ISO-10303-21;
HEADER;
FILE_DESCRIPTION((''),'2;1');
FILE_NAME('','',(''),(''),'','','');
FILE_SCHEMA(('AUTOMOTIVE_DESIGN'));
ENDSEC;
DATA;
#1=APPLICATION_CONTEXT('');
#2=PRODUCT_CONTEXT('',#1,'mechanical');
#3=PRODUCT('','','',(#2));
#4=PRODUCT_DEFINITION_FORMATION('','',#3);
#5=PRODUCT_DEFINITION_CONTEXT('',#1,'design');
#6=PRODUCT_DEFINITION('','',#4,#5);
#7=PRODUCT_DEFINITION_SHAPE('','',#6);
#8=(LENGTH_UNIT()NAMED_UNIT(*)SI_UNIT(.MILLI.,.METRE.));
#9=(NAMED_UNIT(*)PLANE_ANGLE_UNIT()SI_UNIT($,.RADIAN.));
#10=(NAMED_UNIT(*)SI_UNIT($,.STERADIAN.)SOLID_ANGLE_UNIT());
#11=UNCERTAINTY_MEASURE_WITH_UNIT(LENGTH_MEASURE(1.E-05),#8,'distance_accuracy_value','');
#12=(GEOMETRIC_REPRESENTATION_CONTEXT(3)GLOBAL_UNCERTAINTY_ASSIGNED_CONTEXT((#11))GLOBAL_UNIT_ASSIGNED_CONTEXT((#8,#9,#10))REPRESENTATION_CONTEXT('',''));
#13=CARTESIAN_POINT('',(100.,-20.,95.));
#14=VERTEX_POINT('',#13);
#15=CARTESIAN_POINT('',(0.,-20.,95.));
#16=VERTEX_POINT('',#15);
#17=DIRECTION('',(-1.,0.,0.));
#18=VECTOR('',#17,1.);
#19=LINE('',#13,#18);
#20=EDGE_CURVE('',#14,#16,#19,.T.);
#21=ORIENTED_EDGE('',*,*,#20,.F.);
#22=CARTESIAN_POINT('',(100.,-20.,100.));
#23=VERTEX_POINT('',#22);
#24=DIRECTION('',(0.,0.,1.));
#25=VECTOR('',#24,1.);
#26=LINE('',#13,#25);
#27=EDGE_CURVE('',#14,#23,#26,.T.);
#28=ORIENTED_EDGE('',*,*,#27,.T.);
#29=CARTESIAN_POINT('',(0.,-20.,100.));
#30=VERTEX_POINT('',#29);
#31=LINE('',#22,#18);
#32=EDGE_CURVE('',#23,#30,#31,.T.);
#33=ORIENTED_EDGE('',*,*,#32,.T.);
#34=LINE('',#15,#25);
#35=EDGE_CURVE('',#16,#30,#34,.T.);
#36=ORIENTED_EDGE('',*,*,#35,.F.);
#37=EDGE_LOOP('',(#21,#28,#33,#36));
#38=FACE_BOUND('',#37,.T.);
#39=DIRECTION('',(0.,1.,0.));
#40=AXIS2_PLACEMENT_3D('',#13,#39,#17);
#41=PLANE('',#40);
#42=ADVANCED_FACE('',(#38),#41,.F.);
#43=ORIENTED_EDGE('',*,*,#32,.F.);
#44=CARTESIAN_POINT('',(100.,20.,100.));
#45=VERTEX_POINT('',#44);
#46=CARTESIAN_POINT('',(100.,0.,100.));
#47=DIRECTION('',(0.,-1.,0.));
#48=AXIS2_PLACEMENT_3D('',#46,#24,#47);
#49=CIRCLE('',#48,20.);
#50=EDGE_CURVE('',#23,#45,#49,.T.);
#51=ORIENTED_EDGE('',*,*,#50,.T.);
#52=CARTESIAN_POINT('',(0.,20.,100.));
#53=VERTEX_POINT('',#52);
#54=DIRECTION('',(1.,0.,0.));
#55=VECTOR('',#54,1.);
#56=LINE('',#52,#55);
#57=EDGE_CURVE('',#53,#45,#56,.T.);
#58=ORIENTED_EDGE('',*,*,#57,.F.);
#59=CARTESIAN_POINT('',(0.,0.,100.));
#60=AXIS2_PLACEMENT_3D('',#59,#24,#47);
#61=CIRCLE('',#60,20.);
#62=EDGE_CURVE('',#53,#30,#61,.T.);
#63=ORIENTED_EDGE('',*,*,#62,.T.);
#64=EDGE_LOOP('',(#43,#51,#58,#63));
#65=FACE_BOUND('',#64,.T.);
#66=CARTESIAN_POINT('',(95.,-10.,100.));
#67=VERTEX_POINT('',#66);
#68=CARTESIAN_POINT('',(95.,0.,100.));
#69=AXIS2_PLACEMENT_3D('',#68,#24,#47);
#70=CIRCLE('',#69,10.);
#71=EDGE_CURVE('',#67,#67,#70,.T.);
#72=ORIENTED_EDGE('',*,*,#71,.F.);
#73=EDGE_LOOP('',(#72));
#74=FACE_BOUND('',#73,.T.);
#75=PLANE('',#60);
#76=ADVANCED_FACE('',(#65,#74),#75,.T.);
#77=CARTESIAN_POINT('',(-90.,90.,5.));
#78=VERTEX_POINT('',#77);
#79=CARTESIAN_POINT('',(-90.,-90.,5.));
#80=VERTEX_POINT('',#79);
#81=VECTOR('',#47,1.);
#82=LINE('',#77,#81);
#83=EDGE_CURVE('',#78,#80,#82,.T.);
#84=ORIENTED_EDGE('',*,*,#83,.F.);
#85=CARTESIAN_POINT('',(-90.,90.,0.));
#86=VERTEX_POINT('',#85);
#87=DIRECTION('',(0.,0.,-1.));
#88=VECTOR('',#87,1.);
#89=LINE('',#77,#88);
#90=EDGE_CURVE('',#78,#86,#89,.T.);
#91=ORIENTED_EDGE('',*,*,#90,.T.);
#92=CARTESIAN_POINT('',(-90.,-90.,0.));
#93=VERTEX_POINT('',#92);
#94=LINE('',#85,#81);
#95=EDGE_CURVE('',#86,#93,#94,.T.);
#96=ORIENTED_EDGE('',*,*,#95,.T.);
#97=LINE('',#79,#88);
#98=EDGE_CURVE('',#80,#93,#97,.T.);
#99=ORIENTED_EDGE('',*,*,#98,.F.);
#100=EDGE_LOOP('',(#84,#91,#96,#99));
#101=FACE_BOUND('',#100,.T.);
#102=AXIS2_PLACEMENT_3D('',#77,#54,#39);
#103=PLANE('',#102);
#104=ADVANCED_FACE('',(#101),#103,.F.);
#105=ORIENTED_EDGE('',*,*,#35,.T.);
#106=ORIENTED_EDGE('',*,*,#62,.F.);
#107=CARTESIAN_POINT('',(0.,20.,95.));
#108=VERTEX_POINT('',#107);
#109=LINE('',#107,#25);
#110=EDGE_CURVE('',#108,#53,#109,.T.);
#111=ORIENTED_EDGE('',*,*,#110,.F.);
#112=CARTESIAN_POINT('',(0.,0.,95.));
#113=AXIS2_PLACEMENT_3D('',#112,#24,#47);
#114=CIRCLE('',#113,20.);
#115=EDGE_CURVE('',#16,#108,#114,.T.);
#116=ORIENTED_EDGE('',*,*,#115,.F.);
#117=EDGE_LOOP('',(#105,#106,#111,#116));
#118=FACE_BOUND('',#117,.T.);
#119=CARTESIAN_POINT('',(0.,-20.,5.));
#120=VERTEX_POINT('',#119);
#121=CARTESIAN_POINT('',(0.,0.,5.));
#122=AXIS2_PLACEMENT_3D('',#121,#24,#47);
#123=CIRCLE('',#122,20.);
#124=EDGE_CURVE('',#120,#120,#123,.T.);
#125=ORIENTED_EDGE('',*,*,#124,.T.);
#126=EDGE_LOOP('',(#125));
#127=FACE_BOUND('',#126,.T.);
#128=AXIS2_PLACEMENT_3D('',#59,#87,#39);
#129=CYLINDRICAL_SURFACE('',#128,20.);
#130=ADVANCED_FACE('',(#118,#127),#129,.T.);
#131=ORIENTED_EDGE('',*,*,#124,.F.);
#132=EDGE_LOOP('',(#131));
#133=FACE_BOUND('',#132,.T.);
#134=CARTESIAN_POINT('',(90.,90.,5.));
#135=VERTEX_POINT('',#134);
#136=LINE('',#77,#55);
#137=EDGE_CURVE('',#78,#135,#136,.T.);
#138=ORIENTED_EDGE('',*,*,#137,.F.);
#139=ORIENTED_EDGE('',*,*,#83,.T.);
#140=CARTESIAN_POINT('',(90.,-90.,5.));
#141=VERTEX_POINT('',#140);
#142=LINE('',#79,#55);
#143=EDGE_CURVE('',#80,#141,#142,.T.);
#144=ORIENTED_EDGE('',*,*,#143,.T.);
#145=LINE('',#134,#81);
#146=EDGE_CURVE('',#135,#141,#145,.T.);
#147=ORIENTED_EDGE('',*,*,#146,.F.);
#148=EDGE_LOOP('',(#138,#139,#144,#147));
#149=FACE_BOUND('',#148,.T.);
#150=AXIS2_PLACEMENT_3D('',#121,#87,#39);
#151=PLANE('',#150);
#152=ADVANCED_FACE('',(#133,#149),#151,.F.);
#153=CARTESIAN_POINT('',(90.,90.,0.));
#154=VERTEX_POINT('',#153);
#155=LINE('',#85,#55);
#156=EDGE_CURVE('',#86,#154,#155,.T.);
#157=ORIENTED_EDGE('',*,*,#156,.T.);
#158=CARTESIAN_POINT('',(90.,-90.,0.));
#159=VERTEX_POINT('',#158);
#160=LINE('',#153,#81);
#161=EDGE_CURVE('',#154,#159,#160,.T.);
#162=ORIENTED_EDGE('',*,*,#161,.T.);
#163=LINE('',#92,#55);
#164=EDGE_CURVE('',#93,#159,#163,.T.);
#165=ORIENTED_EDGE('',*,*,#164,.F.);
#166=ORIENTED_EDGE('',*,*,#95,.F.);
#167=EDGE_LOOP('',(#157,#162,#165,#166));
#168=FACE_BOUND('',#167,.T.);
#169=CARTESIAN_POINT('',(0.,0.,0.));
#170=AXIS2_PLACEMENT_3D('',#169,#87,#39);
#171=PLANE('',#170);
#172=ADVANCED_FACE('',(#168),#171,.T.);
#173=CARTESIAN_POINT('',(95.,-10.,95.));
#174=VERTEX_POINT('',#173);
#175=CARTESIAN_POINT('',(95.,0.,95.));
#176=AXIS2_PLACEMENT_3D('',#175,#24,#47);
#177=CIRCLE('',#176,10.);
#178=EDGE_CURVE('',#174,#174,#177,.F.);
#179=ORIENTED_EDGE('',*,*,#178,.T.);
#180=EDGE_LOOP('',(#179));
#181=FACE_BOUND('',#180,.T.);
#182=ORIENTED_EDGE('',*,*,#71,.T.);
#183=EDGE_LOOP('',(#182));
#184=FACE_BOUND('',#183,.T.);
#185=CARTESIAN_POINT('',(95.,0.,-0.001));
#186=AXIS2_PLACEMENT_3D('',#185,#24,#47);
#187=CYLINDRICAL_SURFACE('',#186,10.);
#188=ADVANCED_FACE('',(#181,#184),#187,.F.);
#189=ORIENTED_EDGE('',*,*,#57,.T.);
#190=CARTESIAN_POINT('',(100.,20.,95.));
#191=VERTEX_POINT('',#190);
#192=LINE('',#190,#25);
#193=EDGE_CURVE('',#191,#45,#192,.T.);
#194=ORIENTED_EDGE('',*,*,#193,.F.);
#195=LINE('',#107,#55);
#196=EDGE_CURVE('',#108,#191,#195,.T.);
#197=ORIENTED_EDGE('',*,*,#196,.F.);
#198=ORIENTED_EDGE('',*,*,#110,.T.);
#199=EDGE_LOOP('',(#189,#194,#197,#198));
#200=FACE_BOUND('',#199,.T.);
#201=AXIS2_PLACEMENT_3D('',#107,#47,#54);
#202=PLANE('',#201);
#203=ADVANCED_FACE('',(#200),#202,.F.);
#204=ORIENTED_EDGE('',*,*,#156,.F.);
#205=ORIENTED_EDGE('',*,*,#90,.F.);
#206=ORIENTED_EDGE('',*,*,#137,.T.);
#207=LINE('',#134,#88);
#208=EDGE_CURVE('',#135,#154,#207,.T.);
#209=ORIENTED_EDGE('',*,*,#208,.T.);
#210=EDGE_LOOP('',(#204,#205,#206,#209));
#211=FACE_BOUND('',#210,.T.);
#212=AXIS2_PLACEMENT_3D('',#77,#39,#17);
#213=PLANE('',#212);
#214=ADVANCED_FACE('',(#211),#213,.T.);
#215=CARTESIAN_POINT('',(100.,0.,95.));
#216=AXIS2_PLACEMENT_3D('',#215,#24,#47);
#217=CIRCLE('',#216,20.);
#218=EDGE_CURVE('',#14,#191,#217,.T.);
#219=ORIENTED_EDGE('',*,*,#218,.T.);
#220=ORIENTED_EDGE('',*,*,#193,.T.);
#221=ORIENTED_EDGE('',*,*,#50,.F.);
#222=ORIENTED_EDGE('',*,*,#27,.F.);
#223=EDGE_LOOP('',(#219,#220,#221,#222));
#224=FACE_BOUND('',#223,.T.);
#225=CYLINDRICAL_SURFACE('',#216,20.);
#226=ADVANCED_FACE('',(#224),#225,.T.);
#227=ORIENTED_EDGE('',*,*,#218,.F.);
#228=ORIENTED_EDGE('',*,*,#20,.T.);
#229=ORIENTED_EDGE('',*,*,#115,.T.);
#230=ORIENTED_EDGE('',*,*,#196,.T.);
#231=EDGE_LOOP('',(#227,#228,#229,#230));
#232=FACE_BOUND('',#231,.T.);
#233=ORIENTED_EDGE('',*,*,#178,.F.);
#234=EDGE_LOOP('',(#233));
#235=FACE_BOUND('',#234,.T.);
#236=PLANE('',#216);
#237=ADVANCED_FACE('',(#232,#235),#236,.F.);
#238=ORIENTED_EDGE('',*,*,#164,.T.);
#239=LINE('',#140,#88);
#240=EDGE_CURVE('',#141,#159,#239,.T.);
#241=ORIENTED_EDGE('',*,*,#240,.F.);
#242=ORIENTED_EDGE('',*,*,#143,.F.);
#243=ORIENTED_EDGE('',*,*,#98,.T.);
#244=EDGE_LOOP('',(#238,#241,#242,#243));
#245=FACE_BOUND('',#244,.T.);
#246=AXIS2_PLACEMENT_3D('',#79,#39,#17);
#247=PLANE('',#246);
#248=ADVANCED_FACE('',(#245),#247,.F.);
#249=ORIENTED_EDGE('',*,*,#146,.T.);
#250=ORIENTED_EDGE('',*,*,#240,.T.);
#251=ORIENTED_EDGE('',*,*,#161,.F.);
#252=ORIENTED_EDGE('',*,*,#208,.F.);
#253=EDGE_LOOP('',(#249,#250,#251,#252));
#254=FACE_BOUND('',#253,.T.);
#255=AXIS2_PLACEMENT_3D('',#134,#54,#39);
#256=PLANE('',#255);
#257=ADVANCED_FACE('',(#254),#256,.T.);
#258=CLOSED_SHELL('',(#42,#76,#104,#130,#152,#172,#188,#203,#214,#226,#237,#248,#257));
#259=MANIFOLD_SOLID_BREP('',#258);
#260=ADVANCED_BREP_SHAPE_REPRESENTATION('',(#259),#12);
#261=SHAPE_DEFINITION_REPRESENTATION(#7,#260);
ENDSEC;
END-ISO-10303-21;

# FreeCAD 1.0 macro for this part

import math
import FreeCAD as App
import Part
import Sketcher

V = App.Vector

doc = App.newDocument("Part")
body = doc.addObject("PartDesign::Body", "Body")

# Sketch on XZ plane
sketch1 = doc.addObject("Sketcher::SketchObject", "Sketch")
body.addObject(sketch1)
sketch1.AttachmentSupport = (doc.XZ_Plane, [""])
sketch1.MapMode = "FlatFace"
sketch1.addGeometry([
    Part.LineSegment(V(-90, -90, 0), V(-90, 90, 0)),
    Part.LineSegment(V(-90, 90, 0), V(90, 90, 0)),
    Part.LineSegment(V(90, 90, 0), V(90, -90, 0)),
    Part.LineSegment(V(90, -90, 0), V(-90, -90, 0)),
], False)
sketch1.addConstraint([
    Sketcher.Constraint("Coincident", 0, 2, 1, 1),
    Sketcher.Constraint("Coincident", 1, 2, 2, 1),
    Sketcher.Constraint("Coincident", 2, 2, 3, 1),
    Sketcher.Constraint("Coincident", 3, 2, 0, 1),
    Sketcher.Constraint("Vertical", 0),
    Sketcher.Constraint("Horizontal", 1),
    Sketcher.Constraint("Vertical", 2),
    Sketcher.Constraint("Horizontal", 3),
    Sketcher.Constraint("Symmetric", 0, 2, 2, 2, -1, 1),
    Sketcher.Constraint("Equal", 3, 0),
    Sketcher.Constraint("DistanceX", 1, 1, 1, 2, 180.0),
])
pad1 = doc.addObject("PartDesign::Pad", "Pad")
body.addObject(pad1)
pad1.Profile = sketch1
pad1.Length = 5
pad1.Reversed = True

# Sketch on XZ plane
sketch2 = doc.addObject("Sketcher::SketchObject", "Sketch001")
body.addObject(sketch2)
sketch2.AttachmentSupport = (doc.XZ_Plane, [""])
sketch2.MapMode = "FlatFace"
sketch2.AttachmentOffset = App.Placement(V(0, 0, -5), App.Rotation())
sketch2.addGeometry(Part.Circle(V(0, 0, 0), V(0, 0, 1), 20), False)
sketch2.addConstraint([
    Sketcher.Constraint("Coincident", 0, 3, -1, 1),
    Sketcher.Constraint("Diameter", 0, 40.0),
])
pad2 = doc.addObject("PartDesign::Pad", "Pad001")
body.addObject(pad2)
pad2.Profile = sketch2
pad2.Length = 95
pad2.Reversed = True

# Sketch on XZ plane
sketch3 = doc.addObject("Sketcher::SketchObject", "Sketch002")
body.addObject(sketch3)
sketch3.AttachmentSupport = (doc.XZ_Plane, [""])
sketch3.MapMode = "FlatFace"
sketch3.AttachmentOffset = App.Placement(V(0, 0, -95), App.Rotation())
sketch3.addGeometry([
    Part.LineSegment(V(100, -20, 0), V(0, -20, 0)),
    Part.ArcOfCircle(Part.Circle(V(0, 0, 0), V(0, 0, 1), 20), math.radians(90), math.radians(270)),
    Part.LineSegment(V(0, 20, 0), V(100, 20, 0)),
    Part.ArcOfCircle(Part.Circle(V(100, 0, 0), V(0, 0, 1), 20), math.radians(-90), math.radians(90)),
], False)
sketch3.addConstraint([
    Sketcher.Constraint("Tangent", 0, 2, 1, 2),
    Sketcher.Constraint("Tangent", 1, 1, 2, 1),
    Sketcher.Constraint("Tangent", 2, 2, 3, 2),
    Sketcher.Constraint("Tangent", 3, 1, 0, 1),
    Sketcher.Constraint("Horizontal", 0),
    Sketcher.Constraint("Horizontal", 2),
    Sketcher.Constraint("Coincident", 1, 3, -1, 1),
    Sketcher.Constraint("Radius", 1, 20.0),
    Sketcher.Constraint("DistanceX", 0, 2, 0, 1, 100.0),
])
pad3 = doc.addObject("PartDesign::Pad", "Pad002")
body.addObject(pad3)
pad3.Profile = sketch3
pad3.Length = 5
pad3.Reversed = True

# Sketch on XZ plane
sketch4 = doc.addObject("Sketcher::SketchObject", "Sketch003")
body.addObject(sketch4)
sketch4.AttachmentSupport = (doc.XZ_Plane, [""])
sketch4.MapMode = "FlatFace"
sketch4.AttachmentOffset = App.Placement(V(0, 0, -100), App.Rotation())
sketch4.addGeometry(Part.Circle(V(95, 0, 0), V(0, 0, 1), 10), False)
sketch4.addConstraint([
    Sketcher.Constraint("PointOnObject", 0, 3, -1),
    Sketcher.Constraint("Diameter", 0, 20.0),
    Sketcher.Constraint("DistanceX", -1, 1, 0, 3, 95.0),
])
pocket1 = doc.addObject("PartDesign::Pocket", "Pocket")
body.addObject(pocket1)
pocket1.Profile = sketch4
pocket1.Type = "UpToFirst"
pocket1.Reversed = True
body2 = doc.addObject("PartDesign::Body", "Body001")
doc.recompute()

body.Placement = App.Placement(V(0, 0, 0), App.Rotation(V(1, 0, 0), 90))
boolean = doc.addObject("PartDesign::Boolean", "Boolean")
body2.addObject(boolean)
boolean.Type = "Fuse"
boolean.addObjects([body])

doc.recompute()
